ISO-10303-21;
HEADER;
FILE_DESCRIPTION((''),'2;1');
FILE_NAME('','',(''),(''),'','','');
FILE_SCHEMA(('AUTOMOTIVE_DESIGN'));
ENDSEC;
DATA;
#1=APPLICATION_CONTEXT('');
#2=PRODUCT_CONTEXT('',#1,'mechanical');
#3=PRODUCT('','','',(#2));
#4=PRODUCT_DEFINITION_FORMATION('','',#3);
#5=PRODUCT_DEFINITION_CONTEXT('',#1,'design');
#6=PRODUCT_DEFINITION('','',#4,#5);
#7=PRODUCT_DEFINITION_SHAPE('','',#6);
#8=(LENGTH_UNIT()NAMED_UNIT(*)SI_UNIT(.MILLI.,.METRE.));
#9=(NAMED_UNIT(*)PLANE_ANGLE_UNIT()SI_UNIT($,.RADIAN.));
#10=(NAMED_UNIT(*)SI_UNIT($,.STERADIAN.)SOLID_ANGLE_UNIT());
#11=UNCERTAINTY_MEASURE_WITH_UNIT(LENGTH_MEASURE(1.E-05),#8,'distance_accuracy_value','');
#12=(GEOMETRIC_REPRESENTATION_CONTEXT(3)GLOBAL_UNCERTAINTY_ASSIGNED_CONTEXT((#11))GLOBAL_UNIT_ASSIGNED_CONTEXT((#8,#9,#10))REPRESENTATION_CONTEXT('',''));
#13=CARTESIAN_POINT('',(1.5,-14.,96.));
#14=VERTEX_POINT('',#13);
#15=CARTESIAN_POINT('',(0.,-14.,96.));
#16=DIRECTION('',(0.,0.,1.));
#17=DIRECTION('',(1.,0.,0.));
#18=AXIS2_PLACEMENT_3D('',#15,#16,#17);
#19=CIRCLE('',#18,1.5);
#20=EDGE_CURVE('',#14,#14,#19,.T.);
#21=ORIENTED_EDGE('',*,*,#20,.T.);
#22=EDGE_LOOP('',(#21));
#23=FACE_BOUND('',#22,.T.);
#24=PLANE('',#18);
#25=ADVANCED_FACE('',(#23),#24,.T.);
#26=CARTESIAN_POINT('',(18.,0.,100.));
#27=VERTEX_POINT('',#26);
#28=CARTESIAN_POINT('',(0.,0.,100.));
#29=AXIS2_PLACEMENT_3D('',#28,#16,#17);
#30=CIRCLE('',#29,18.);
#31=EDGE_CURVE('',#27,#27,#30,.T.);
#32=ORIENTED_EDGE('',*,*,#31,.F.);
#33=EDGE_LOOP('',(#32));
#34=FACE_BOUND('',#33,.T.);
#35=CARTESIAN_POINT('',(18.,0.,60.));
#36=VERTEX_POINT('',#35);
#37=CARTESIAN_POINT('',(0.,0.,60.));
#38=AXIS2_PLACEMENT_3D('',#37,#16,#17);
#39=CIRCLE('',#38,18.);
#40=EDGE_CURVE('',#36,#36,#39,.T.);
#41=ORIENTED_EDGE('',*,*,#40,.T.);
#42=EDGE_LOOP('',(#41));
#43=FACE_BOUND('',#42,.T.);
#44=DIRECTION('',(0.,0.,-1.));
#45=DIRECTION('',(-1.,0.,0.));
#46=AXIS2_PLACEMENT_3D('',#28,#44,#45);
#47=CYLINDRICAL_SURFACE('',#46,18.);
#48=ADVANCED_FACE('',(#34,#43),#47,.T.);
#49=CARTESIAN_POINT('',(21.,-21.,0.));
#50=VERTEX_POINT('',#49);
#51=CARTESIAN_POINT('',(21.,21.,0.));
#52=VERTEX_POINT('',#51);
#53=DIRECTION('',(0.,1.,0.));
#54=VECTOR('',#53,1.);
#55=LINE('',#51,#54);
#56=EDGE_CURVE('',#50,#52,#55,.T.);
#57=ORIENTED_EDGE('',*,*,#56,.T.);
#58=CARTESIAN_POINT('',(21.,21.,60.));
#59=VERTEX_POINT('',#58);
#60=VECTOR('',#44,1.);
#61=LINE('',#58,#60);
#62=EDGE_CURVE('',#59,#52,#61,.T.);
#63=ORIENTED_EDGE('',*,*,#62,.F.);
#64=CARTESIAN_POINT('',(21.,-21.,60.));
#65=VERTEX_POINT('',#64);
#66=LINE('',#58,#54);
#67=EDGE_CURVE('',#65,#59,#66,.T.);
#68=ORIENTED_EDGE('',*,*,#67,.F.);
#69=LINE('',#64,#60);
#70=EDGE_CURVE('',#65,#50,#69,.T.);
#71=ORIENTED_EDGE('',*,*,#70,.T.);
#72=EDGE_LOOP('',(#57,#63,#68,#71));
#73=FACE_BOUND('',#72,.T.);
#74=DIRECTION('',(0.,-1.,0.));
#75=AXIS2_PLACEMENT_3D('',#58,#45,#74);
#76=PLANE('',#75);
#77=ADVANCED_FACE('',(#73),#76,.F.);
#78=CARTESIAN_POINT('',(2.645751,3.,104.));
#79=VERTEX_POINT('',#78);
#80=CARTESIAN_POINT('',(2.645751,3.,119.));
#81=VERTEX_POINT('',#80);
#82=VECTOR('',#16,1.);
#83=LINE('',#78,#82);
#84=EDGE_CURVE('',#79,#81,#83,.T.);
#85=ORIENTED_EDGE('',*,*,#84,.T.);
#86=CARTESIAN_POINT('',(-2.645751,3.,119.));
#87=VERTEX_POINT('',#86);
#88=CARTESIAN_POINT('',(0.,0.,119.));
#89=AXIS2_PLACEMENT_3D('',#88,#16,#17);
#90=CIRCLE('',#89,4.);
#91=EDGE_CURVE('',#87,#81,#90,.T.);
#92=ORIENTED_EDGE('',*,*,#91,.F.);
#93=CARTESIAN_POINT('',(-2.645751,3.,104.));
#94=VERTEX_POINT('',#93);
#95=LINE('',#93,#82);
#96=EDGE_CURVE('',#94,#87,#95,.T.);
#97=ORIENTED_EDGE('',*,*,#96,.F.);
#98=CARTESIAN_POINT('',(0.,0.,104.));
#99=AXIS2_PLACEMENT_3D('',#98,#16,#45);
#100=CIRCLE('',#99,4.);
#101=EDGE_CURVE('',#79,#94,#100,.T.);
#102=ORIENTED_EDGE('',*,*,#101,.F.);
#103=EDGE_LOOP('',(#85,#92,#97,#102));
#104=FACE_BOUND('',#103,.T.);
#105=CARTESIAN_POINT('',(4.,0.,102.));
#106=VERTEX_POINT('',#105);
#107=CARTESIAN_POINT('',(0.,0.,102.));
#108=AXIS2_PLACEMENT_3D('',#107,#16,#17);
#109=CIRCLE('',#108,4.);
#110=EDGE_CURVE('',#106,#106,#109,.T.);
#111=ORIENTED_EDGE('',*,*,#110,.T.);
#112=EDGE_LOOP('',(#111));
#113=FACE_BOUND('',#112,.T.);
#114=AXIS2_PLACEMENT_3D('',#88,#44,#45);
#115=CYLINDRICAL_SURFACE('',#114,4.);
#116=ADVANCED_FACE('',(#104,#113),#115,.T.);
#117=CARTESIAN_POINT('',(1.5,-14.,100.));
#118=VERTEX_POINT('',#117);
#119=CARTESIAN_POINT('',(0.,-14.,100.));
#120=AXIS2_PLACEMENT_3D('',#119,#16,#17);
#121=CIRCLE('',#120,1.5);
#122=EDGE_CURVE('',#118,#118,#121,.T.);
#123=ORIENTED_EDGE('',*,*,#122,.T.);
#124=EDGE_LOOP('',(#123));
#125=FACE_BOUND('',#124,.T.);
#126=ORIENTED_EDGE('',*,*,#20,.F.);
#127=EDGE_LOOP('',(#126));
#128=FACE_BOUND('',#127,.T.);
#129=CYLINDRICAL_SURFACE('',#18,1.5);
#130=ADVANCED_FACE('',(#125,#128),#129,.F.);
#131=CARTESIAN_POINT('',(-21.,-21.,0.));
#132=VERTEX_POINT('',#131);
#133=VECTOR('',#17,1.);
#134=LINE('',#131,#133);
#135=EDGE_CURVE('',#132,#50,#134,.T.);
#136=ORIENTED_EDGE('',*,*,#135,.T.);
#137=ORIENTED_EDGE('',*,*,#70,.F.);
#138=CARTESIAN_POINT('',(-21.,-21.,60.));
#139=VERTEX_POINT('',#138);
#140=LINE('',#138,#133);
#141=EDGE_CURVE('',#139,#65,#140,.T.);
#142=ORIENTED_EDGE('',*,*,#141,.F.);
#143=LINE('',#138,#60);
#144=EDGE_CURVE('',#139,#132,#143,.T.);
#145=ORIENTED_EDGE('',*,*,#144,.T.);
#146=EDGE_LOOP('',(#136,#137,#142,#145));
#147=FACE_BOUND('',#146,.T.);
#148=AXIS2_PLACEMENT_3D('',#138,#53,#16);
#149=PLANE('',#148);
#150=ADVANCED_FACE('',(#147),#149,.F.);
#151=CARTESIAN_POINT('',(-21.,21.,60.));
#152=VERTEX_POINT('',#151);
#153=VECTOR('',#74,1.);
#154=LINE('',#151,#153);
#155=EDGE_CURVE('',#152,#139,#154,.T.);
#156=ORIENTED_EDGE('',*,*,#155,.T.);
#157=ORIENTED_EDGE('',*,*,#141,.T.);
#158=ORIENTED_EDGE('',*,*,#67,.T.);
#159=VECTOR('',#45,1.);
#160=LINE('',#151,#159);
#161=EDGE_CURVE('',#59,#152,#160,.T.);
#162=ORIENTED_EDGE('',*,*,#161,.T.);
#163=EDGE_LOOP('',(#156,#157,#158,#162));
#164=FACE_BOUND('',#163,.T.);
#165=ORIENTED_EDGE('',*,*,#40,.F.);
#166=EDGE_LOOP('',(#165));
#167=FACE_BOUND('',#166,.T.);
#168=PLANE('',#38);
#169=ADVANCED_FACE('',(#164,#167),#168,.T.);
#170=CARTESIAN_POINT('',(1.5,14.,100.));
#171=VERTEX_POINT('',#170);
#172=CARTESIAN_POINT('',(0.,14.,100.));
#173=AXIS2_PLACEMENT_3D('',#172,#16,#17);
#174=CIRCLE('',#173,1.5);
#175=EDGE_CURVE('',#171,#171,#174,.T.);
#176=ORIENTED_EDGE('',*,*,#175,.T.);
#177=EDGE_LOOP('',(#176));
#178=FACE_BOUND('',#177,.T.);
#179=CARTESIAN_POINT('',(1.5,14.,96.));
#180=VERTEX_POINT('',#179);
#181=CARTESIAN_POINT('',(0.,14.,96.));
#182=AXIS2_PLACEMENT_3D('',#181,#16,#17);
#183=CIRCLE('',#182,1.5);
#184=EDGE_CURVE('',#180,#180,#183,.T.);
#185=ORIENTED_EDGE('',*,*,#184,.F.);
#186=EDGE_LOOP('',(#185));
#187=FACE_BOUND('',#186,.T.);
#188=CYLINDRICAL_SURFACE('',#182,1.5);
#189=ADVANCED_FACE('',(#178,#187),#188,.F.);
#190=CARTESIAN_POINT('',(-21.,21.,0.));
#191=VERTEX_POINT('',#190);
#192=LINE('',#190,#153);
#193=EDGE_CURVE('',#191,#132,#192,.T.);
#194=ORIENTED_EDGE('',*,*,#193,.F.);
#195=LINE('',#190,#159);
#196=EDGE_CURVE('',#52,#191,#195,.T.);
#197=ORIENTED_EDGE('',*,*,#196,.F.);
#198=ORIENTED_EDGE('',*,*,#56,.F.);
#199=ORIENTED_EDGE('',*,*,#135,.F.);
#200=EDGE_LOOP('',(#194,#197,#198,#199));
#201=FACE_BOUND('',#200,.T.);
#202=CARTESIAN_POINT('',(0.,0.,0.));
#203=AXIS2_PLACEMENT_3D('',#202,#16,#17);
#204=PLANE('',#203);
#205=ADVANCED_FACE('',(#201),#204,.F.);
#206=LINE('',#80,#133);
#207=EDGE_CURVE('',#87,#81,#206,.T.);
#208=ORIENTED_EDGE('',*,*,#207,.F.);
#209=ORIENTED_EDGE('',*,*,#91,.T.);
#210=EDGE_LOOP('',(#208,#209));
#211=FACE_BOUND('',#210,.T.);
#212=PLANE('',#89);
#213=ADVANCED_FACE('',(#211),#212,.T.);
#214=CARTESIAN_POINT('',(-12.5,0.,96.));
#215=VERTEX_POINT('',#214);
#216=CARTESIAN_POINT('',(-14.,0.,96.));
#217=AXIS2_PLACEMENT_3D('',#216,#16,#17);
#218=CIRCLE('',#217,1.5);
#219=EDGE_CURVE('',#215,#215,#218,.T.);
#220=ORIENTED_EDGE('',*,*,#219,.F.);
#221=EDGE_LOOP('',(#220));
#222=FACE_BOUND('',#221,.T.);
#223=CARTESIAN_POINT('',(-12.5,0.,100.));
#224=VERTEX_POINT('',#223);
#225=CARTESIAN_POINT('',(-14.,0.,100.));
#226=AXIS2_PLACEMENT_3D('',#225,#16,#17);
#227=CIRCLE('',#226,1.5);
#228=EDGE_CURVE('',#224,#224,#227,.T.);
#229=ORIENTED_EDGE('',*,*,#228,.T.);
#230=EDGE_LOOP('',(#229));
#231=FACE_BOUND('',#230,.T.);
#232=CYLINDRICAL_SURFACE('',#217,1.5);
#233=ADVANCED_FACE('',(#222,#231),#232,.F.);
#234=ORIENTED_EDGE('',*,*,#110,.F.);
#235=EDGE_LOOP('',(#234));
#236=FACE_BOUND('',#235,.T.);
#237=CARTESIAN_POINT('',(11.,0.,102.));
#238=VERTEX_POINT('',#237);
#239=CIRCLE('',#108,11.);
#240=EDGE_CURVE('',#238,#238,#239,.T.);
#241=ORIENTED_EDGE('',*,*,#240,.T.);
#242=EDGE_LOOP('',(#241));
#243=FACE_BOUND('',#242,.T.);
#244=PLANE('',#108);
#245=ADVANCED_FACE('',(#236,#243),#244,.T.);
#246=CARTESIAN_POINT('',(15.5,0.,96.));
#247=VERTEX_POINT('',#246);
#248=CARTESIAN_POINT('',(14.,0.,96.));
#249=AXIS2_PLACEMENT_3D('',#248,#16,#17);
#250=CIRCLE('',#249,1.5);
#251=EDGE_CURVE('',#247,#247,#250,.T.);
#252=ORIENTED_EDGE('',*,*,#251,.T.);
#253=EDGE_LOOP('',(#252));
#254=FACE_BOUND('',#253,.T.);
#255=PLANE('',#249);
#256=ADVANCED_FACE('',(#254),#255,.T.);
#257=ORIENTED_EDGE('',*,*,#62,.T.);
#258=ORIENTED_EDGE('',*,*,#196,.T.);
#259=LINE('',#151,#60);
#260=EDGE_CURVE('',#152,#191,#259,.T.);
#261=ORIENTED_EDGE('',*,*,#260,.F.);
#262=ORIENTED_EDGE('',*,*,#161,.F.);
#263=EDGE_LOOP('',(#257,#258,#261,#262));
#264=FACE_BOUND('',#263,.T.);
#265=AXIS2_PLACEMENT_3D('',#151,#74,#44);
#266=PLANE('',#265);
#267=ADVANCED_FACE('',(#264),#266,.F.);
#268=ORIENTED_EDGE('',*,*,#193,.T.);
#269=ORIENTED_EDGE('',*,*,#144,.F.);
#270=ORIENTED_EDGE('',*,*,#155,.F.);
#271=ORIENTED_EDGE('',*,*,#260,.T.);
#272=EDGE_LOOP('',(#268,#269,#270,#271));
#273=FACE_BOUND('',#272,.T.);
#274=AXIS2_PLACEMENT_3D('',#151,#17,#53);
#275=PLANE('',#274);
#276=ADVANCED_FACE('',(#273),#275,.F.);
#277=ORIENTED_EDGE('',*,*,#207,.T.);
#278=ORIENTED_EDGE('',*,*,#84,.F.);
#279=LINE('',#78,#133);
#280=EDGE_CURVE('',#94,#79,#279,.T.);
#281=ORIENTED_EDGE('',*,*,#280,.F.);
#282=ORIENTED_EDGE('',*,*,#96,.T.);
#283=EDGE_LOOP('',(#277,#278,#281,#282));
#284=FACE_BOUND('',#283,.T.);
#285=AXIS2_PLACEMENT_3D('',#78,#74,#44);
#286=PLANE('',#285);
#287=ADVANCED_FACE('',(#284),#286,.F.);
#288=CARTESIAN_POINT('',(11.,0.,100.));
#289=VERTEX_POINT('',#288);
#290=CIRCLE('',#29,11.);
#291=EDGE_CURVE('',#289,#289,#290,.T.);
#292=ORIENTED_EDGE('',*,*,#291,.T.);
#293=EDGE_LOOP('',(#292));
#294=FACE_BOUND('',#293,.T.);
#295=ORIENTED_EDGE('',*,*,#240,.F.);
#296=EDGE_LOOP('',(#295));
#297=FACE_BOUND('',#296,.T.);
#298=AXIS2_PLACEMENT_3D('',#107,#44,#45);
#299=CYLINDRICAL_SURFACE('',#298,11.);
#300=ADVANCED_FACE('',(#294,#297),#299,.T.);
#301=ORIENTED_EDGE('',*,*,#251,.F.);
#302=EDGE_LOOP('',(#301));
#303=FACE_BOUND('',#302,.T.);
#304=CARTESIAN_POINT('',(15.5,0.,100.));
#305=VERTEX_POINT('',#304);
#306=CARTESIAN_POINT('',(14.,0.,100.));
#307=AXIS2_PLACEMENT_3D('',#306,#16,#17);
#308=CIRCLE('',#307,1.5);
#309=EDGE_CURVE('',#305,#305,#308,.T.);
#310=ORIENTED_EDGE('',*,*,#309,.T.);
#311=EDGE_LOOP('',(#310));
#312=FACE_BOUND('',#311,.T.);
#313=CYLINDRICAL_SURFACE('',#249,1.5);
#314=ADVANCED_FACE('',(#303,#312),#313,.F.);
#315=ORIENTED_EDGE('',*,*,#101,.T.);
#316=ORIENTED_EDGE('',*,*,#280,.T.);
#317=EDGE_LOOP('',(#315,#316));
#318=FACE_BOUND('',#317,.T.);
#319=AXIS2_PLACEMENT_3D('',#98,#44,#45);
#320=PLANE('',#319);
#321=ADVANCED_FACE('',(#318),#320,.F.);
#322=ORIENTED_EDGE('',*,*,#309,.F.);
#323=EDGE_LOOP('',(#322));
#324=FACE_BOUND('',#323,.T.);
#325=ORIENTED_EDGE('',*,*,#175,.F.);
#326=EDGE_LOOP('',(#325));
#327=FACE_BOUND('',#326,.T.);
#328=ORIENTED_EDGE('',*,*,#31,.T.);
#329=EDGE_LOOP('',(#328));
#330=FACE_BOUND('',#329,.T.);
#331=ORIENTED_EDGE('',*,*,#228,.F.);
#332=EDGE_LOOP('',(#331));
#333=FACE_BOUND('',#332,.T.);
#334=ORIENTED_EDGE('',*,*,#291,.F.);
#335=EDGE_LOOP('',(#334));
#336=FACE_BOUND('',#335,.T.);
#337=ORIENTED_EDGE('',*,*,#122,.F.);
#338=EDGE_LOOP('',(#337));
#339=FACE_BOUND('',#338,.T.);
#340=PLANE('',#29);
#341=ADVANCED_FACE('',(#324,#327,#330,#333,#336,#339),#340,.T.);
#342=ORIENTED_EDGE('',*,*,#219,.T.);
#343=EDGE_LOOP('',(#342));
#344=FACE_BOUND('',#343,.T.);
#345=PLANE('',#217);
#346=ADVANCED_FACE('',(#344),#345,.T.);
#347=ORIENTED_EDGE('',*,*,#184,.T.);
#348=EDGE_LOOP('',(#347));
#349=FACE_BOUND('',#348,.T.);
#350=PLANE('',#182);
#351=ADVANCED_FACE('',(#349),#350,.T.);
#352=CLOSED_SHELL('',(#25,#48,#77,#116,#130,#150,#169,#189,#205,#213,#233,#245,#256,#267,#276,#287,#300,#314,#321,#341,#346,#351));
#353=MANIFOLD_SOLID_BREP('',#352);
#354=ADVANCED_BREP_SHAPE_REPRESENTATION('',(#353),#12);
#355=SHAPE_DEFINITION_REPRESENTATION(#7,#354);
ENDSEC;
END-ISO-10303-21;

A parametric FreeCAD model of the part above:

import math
import FreeCAD as App
import Part
import Sketcher

V = App.Vector


def add_polygon(sketch, points):
    """Adds a closed chain of lines whose ends are joined by coincident constraints."""
    first, n = sketch.GeometryCount, len(points)
    for a, b in zip(points, points[1:] + points[:1]):
        sketch.addGeometry(Part.LineSegment(App.Vector(*a, 0), App.Vector(*b, 0)), False)
    for i in range(n):
        sketch.addConstraint(Sketcher.Constraint("Coincident", first + i, 2, first + (i + 1) % n, 1))

doc = App.newDocument("Part")
body = doc.addObject("PartDesign::Body", "Body")

# Sketch on XY plane
sketch1 = body.newObject("Sketcher::SketchObject", "Sketch")
sketch1.AttachmentSupport = (doc.getObject("XY_Plane"), [""])
sketch1.MapMode = "FlatFace"
add_polygon(sketch1, [(-21, 21), (-21, -21), (21, -21), (21, 21)])  # lines 0-3
sketch1.addConstraint([
    Sketcher.Constraint("Vertical", 0),
    Sketcher.Constraint("Horizontal", 1),
    Sketcher.Constraint("Vertical", 2),
    Sketcher.Constraint("Horizontal", 3),
    Sketcher.Constraint("Symmetric", 0, 2, 2, 2, -1, 1),
    Sketcher.Constraint("Equal", 3, 0),
    Sketcher.Constraint("DistanceX", 1, 1, 1, 2, 42.0),
])
pad1 = body.newObject("PartDesign::Pad", "Pad")
pad1.Profile = sketch1
pad1.Length = 60

# Sketch on XY plane
sketch2 = body.newObject("Sketcher::SketchObject", "Sketch001")
sketch2.AttachmentSupport = (doc.getObject("XY_Plane"), [""])
sketch2.MapMode = "FlatFace"
sketch2.AttachmentOffset = App.Placement(V(0, 0, 60), App.Rotation())
sketch2.addGeometry(Part.Circle(V(0, 0, 0), V(0, 0, 1), 18), False)
sketch2.addConstraint([
    Sketcher.Constraint("Coincident", 0, 3, -1, 1),
    Sketcher.Constraint("Diameter", 0, 36.0),
])
pad2 = body.newObject("PartDesign::Pad", "Pad001")
pad2.Profile = sketch2
pad2.Length = 40

# Sketch on XY plane
sketch3 = body.newObject("Sketcher::SketchObject", "Sketch002")
sketch3.AttachmentSupport = (doc.getObject("XY_Plane"), [""])
sketch3.MapMode = "FlatFace"
sketch3.AttachmentOffset = App.Placement(V(0, 0, 100), App.Rotation())
sketch3.addGeometry(Part.Circle(V(0, 0, 0), V(0, 0, 1), 11), False)
sketch3.addConstraint([
    Sketcher.Constraint("Coincident", 0, 3, -1, 1),
    Sketcher.Constraint("Diameter", 0, 22.0),
])
pad3 = body.newObject("PartDesign::Pad", "Pad002")
pad3.Profile = sketch3
pad3.Length = 2

# Sketch on XY plane
sketch4 = body.newObject("Sketcher::SketchObject", "Sketch003")
sketch4.AttachmentSupport = (doc.getObject("XY_Plane"), [""])
sketch4.MapMode = "FlatFace"
sketch4.AttachmentOffset = App.Placement(V(0, 0, 102), App.Rotation())
sketch4.addGeometry(Part.Circle(V(0, 0, 0), V(0, 0, 1), 4), False)
sketch4.addConstraint([
    Sketcher.Constraint("Coincident", 0, 3, -1, 1),
    Sketcher.Constraint("Diameter", 0, 8.0),
])
pad4 = body.newObject("PartDesign::Pad", "Pad003")
pad4.Profile = sketch4
pad4.Length = 17

# Sketch on XY plane
sketch5 = body.newObject("Sketcher::SketchObject", "Sketch004")
sketch5.AttachmentSupport = (doc.getObject("XY_Plane"), [""])
sketch5.MapMode = "FlatFace"
sketch5.AttachmentOffset = App.Placement(V(0, 0, 100), App.Rotation())
sketch5.addGeometry([
    Part.Circle(V(0, 14, 0), V(0, 0, 1), 1.5),
    Part.Circle(V(14, 0, 0), V(0, 0, 1), 1.5),
    Part.Circle(V(0, -14, 0), V(0, 0, 1), 1.5),
    Part.Circle(V(-14, 0, 0), V(0, 0, 1), 1.5),
], False)
sketch5.addConstraint([
    Sketcher.Constraint("Equal", 0, 1),
    Sketcher.Constraint("Equal", 1, 2),
    Sketcher.Constraint("Equal", 2, 3),
    Sketcher.Constraint("Symmetric", 0, 3, 2, 3, -1, 1),
    Sketcher.Constraint("Symmetric", 1, 3, 3, 3, -1, 1),
    Sketcher.Constraint("PointOnObject", 0, 3, -2),
    Sketcher.Constraint("PointOnObject", 1, 3, -1),
    Sketcher.Constraint("Diameter", 0, 3.0),
    Sketcher.Constraint("DistanceY", -1, 1, 0, 3, 14.0),
    Sketcher.Constraint("DistanceX", -1, 1, 1, 3, 14.0),
])
pocket1 = body.newObject("PartDesign::Pocket", "Pocket")
pocket1.Profile = sketch5
pocket1.Length = 4

# Sketch on XY plane
sketch6 = body.newObject("Sketcher::SketchObject", "Sketch005")
sketch6.AttachmentSupport = (doc.getObject("XY_Plane"), [""])
sketch6.MapMode = "FlatFace"
sketch6.AttachmentOffset = App.Placement(V(0, 0, 104), App.Rotation())
sketch6.addGeometry([
    Part.LineSegment(V(-2.645751, 3, 0), V(2.645751, 3, 0)),
    Part.ArcOfCircle(Part.Circle(V(0, 0, 0), V(0, 0, 1), 4), math.radians(48.590378), math.radians(131.409622)),
], False)
sketch6.addConstraint([
    Sketcher.Constraint("Coincident", 0, 1, 1, 2),
    Sketcher.Constraint("Coincident", 1, 1, 0, 2),
    Sketcher.Constraint("Horizontal", 0),
    Sketcher.Constraint("Coincident", 1, 3, -1, 1),
    Sketcher.Constraint("Radius", 1, 4.0),
    Sketcher.Constraint("DistanceY", -1, 1, 0, 1, 3.0),
])
pocket2 = body.newObject("PartDesign::Pocket", "Pocket001")
pocket2.Profile = sketch6
pocket2.Length = 15
pocket2.Reversed = True

doc.recompute()
